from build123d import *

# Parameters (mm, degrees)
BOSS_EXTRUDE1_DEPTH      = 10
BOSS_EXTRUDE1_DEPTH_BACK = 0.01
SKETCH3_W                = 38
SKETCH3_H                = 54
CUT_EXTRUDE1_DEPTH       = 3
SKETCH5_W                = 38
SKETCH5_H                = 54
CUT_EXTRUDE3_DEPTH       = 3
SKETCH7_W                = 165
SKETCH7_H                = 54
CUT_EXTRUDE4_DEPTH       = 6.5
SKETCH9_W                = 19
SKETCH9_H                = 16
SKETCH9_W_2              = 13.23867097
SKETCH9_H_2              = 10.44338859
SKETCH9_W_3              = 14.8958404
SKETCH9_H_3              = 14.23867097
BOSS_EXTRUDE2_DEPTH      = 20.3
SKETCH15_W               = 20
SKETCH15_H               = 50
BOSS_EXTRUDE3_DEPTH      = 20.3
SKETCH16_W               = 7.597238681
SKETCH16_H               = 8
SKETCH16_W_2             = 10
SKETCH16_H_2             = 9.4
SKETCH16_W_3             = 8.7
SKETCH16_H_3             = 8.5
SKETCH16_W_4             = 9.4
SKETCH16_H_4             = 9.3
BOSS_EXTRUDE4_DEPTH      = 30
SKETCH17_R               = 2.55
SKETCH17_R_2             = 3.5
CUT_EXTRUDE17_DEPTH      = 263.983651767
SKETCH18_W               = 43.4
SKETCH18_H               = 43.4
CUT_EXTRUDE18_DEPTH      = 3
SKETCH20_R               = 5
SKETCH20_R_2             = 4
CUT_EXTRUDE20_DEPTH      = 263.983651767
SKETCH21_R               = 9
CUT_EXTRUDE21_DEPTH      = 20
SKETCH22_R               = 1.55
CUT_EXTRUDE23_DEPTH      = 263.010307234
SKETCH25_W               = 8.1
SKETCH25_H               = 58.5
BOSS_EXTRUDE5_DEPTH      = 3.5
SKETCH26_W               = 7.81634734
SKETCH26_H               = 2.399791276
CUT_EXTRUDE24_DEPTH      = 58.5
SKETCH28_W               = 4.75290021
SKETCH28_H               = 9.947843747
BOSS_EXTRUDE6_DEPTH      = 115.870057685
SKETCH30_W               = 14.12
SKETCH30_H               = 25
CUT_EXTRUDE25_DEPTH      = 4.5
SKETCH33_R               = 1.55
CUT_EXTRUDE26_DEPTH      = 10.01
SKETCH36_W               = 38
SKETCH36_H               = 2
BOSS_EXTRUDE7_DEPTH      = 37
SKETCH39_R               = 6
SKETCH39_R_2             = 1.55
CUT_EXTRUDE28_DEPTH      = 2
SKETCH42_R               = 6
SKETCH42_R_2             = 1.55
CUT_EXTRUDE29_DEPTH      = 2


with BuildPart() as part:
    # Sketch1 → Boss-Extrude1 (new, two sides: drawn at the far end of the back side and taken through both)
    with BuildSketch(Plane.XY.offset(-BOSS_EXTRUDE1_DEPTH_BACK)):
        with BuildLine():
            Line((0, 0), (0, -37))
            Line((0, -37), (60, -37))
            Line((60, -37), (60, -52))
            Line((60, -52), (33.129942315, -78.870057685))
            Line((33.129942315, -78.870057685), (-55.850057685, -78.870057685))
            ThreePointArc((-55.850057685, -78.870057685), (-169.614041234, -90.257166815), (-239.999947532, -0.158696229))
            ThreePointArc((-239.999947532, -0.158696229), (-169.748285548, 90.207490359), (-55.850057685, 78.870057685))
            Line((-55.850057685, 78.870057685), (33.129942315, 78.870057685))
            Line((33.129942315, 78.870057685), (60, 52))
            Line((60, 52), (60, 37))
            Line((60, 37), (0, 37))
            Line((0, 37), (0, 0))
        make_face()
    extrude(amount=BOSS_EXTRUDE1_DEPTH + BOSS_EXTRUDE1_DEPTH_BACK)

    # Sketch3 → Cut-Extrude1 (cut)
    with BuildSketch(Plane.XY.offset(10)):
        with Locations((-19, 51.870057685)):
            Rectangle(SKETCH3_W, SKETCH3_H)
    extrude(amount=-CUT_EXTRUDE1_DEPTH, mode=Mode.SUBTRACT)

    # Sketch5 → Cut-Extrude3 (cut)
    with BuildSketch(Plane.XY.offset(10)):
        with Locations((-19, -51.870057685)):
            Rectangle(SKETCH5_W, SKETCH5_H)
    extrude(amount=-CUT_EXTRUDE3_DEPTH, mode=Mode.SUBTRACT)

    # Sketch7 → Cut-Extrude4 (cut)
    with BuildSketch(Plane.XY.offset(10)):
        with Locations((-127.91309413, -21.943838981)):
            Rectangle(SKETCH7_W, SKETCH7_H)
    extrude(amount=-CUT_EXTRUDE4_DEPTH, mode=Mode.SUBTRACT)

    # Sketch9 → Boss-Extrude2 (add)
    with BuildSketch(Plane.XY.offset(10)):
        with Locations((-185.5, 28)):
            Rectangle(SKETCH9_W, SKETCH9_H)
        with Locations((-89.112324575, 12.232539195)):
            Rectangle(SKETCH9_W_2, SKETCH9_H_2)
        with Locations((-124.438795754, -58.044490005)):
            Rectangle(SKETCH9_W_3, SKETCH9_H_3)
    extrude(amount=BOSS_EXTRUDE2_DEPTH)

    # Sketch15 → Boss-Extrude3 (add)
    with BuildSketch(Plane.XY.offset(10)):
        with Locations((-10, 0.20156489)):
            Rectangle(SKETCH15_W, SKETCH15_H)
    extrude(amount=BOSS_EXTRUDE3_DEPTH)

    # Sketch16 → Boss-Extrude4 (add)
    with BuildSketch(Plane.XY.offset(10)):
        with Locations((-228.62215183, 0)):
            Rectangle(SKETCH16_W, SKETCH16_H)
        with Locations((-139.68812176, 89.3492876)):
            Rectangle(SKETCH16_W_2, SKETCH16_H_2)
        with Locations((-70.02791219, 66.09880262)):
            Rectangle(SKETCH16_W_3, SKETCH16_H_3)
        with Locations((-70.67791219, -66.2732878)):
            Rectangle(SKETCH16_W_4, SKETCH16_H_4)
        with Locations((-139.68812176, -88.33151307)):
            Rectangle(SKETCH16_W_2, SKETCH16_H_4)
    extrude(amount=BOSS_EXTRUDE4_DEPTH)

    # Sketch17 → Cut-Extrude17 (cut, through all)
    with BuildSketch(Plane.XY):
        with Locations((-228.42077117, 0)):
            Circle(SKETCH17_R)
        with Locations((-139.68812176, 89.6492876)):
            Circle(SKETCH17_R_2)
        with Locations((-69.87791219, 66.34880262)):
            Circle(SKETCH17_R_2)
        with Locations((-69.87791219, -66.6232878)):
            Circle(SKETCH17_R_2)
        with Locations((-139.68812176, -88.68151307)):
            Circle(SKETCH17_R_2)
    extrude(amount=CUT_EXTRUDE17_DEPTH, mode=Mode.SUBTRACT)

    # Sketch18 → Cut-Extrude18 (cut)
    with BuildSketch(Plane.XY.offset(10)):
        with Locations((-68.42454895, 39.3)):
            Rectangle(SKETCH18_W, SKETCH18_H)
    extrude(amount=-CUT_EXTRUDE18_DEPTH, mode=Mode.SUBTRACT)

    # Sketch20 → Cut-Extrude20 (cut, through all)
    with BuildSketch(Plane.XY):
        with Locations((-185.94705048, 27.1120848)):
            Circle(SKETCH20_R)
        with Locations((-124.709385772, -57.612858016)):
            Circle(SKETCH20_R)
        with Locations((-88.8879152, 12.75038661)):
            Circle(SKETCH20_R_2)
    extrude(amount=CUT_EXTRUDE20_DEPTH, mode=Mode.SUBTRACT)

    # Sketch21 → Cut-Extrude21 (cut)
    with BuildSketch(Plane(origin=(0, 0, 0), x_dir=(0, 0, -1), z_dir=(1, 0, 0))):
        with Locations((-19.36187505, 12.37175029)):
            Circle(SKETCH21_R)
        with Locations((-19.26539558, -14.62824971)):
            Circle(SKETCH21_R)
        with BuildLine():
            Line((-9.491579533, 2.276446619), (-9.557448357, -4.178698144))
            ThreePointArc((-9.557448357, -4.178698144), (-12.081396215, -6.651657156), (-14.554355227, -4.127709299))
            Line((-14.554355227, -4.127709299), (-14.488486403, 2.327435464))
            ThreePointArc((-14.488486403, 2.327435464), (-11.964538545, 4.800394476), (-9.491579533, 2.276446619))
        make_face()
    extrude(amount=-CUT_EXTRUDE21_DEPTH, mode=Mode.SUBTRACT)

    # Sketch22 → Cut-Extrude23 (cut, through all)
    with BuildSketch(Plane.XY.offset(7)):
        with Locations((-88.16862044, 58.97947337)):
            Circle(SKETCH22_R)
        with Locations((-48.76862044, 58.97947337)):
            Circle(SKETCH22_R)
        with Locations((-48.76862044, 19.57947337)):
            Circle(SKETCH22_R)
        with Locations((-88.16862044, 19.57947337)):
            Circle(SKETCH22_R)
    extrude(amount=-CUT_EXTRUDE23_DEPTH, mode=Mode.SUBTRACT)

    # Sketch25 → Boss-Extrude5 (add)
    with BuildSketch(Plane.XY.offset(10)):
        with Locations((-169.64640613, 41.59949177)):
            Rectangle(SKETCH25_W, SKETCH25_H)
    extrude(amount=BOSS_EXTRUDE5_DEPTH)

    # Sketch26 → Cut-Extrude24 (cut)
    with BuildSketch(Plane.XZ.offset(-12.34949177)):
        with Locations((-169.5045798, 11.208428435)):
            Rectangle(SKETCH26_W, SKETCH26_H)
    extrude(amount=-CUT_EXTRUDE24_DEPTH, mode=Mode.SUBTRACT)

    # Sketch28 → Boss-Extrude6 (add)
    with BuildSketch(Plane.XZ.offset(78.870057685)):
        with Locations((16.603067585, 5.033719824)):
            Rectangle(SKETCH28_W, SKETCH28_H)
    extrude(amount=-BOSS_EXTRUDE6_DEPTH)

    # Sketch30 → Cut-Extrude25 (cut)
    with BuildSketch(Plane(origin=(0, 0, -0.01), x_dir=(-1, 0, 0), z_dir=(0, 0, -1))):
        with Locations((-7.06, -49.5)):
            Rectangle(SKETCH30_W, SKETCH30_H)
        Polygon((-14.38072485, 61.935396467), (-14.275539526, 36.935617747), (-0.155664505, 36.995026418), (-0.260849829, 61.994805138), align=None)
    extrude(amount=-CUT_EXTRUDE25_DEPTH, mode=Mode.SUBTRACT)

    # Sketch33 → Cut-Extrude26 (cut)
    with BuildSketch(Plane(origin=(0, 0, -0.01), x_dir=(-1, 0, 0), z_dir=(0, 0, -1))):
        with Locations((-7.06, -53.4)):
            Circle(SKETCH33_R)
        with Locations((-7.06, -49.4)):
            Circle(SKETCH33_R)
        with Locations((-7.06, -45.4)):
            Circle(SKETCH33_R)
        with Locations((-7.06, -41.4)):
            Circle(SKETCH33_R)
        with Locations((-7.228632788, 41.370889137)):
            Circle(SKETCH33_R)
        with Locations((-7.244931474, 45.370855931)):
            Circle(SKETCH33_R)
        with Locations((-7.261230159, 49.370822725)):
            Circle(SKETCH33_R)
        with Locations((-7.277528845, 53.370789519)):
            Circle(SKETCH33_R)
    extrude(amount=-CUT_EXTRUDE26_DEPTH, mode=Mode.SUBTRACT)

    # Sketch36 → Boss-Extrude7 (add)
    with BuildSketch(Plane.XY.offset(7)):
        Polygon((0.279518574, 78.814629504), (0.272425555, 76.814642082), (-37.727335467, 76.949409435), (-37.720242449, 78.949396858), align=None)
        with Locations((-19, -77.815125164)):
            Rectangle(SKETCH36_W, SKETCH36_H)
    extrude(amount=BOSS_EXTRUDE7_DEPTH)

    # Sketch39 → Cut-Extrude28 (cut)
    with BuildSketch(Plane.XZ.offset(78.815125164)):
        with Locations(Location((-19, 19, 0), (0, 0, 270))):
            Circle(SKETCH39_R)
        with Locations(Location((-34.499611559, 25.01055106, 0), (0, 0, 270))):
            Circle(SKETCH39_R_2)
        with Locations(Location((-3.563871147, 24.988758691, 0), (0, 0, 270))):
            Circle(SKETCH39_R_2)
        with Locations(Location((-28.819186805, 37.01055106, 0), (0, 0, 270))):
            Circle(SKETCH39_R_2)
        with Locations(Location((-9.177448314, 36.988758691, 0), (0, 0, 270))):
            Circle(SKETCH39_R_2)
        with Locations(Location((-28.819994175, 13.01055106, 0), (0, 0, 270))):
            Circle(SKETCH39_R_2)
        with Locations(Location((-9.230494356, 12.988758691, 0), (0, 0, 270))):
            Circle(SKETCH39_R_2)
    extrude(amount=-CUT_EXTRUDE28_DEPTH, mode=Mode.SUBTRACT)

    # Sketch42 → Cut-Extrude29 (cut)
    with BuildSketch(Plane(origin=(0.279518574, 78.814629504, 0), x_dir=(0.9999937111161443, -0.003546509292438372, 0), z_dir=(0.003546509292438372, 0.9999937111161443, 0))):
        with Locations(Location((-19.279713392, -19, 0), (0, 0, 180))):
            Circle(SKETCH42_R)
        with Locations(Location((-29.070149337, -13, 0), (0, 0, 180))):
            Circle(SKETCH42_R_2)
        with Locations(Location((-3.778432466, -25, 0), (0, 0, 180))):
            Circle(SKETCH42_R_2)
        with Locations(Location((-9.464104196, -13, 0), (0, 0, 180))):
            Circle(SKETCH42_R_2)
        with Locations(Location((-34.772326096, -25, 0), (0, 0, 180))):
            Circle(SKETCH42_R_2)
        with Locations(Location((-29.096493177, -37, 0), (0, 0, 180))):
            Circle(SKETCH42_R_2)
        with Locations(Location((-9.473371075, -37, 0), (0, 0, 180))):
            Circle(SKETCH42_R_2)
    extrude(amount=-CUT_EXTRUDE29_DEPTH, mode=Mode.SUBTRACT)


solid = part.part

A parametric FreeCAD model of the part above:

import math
import FreeCAD as App
import Part
import Sketcher
from FreeCAD import Vector
Q = App.Units.Quantity


def add_polygon(sketch, points):
    """Adds a closed chain of lines whose ends are joined by coincident constraints."""
    first, n = sketch.GeometryCount, len(points)
    for a, b in zip(points, points[1:] + points[:1]):
        sketch.addGeometry(Part.LineSegment(App.Vector(*a, 0), App.Vector(*b, 0)), False)
    for i in range(n):
        sketch.addConstraint(Sketcher.Constraint("Coincident", first + i, 2, first + (i + 1) % n, 1))

doc = App.newDocument("Part")
body = doc.addObject("PartDesign::Body", "Body")

sketch1 = body.newObject("Sketcher::SketchObject", "Sketch")
sketch1.AttachmentSupport = (doc.getObject("XY_Plane"), [""])
sketch1.MapMode = "FlatFace"
sketch1.addGeometry(Part.LineSegment(Vector(60, -37, 0), Vector(0, -37, 0)), False)
sketch1.addGeometry(Part.LineSegment(Vector(0, -37, 0), Vector(0, 37, 0)), False)
sketch1.addGeometry(Part.LineSegment(Vector(0, 37, 0), Vector(60, 37, 0)), False)
sketch1.addGeometry(Part.LineSegment(Vector(60, 37, 0), Vector(60, 52, 0)), False)
sketch1.addGeometry(Part.LineSegment(Vector(60, 52, 0), Vector(33, 79, 0)), False)
sketch1.addGeometry(Part.LineSegment(Vector(33, 79, 0), Vector(-56, 79, 0)), False)
sketch1.addGeometry(Part.ArcOfCircle(Part.Circle(Vector(-123, -19, 0), Vector(0, 0, 1), 118), math.radians(55), math.radians(171)), False)
sketch1.addGeometry(Part.ArcOfCircle(Part.Circle(Vector(-123, 19, 0), Vector(0, 0, 1), 118), math.radians(-171), math.radians(-55)), False)
sketch1.addGeometry(Part.LineSegment(Vector(-56, -79, 0), Vector(33, -79, 0)), False)
sketch1.addGeometry(Part.LineSegment(Vector(33, -79, 0), Vector(60, -52, 0)), False)
sketch1.addGeometry(Part.LineSegment(Vector(60, -52, 0), Vector(60, -37, 0)), False)
sketch1.addConstraint(Sketcher.Constraint("Coincident", 0, 2, 1, 1))
sketch1.addConstraint(Sketcher.Constraint("Coincident", 1, 2, 2, 1))
sketch1.addConstraint(Sketcher.Constraint("Coincident", 2, 2, 3, 1))
sketch1.addConstraint(Sketcher.Constraint("Coincident", 3, 2, 4, 1))
sketch1.addConstraint(Sketcher.Constraint("Coincident", 4, 2, 5, 1))
sketch1.addConstraint(Sketcher.Constraint("Coincident", 5, 2, 6, 1))
sketch1.addConstraint(Sketcher.Constraint("Coincident", 6, 2, 7, 1))
sketch1.addConstraint(Sketcher.Constraint("Coincident", 7, 2, 8, 1))
sketch1.addConstraint(Sketcher.Constraint("Coincident", 8, 2, 9, 1))
sketch1.addConstraint(Sketcher.Constraint("Coincident", 9, 2, 10, 1))
sketch1.addConstraint(Sketcher.Constraint("Coincident", 10, 2, 0, 1))
sketch1.addConstraint(Sketcher.Constraint("Horizontal", 0))
sketch1.addConstraint(Sketcher.Constraint("Vertical", 1))
sketch1.addConstraint(Sketcher.Constraint("Horizontal", 2))
sketch1.addConstraint(Sketcher.Constraint("Vertical", 3))
sketch1.addConstraint(Sketcher.Constraint("Horizontal", 5))
sketch1.addConstraint(Sketcher.Constraint("Horizontal", 8))
sketch1.addConstraint(Sketcher.Constraint("Vertical", 10))
sketch1.addConstraint(Sketcher.Constraint("Symmetric", 0, 2, 1, 2, -1, 1))
sketch1.addConstraint(Sketcher.Constraint("Symmetric", 5, 2, 7, 2, -1))
sketch1.addConstraint(Sketcher.Constraint("Symmetric", 3, 2, 9, 2, -1))
sketch1.addConstraint(Sketcher.Constraint("Perpendicular", 4, 9))
sketch1.addConstraint(Sketcher.Constraint("Vertical", 6, 3, 7, 3))
sketch1.addConstraint(Sketcher.Constraint("Vertical", 4, 2, 8, 2))
sketch1.addConstraint(Sketcher.Constraint("DistanceX", 0, 2, 0, 1, Q("60 mm")))
sketch1.addConstraint(Sketcher.Constraint("DistanceY", 1, 1, 1, 2, Q("74 mm")))
sketch1.addConstraint(Sketcher.Constraint("DistanceY", 3, 1, 3, 2, Q("15 mm")))
sketch1.addConstraint(Sketcher.Constraint("Distance", 4, Q("38 mm")))
sketch1.addConstraint(Sketcher.Constraint("DistanceX", 5, 2, 5, 1, Q("88.98 mm")))
sketch1.addConstraint(Sketcher.Constraint("Radius", 6, Q("118.378204 mm")))
sketch1.addConstraint(Sketcher.Constraint("Radius", 7, Q("118.439873 mm")))
sketch1.addConstraint(Sketcher.Constraint("DistanceX", 6, 2, 6, 3, Q("116.936702 mm")))
pad1 = body.newObject("PartDesign::Pad", "Pad")
pad1.Profile = sketch1
pad1.Type = "TwoLengths"
pad1.Length = 10
pad1.Length2 = 0.01

sketch2 = body.newObject("Sketcher::SketchObject", "Sketch001")
sketch2.AttachmentSupport = (doc.getObject("XY_Plane"), [""])
sketch2.MapMode = "FlatFace"
sketch2.AttachmentOffset = App.Placement(Vector(0, 0, 10), App.Rotation())
add_polygon(sketch2, [(-38, 79), (-38, 25), (0, 25), (0, 79)])
sketch2.addConstraint(Sketcher.Constraint("Vertical", 0))
sketch2.addConstraint(Sketcher.Constraint("Horizontal", 1))
sketch2.addConstraint(Sketcher.Constraint("Vertical", 2))
sketch2.addConstraint(Sketcher.Constraint("Horizontal", 3))
sketch2.addConstraint(Sketcher.Constraint("PointOnObject", 1, 2, -2))
sketch2.addConstraint(Sketcher.Constraint("DistanceX", 1, 1, 1, 2, Q("38 mm")))
sketch2.addConstraint(Sketcher.Constraint("DistanceY", 0, 2, 0, 1, Q("54 mm")))
sketch2.addConstraint(Sketcher.Constraint("DistanceY", -1, 1, 0, 2, Q("24.870058 mm")))
pocket1 = body.newObject("PartDesign::Pocket", "Pocket")
pocket1.Profile = sketch2
pocket1.Length = 3

sketch3 = body.newObject("Sketcher::SketchObject", "Sketch002")
sketch3.AttachmentSupport = (doc.getObject("XY_Plane"), [""])
sketch3.MapMode = "FlatFace"
sketch3.AttachmentOffset = App.Placement(Vector(0, 0, 10), App.Rotation())
add_polygon(sketch3, [(-38, -25), (-38, -79), (0, -79), (0, -25)])
sketch3.addConstraint(Sketcher.Constraint("Vertical", 0))
sketch3.addConstraint(Sketcher.Constraint("Horizontal", 1))
sketch3.addConstraint(Sketcher.Constraint("Vertical", 2))
sketch3.addConstraint(Sketcher.Constraint("Horizontal", 3))
sketch3.addConstraint(Sketcher.Constraint("PointOnObject", 1, 2, -2))
sketch3.addConstraint(Sketcher.Constraint("DistanceX", 1, 1, 1, 2, Q("38 mm")))
sketch3.addConstraint(Sketcher.Constraint("DistanceY", 0, 2, 0, 1, Q("54 mm")))
sketch3.addConstraint(Sketcher.Constraint("DistanceY", 0, 2, -1, 1, Q("78.870058 mm")))
pocket2 = body.newObject("PartDesign::Pocket", "Pocket001")
pocket2.Profile = sketch3
pocket2.Length = 3

sketch4 = body.newObject("Sketcher::SketchObject", "Sketch003")
sketch4.AttachmentSupport = (doc.getObject("XY_Plane"), [""])
sketch4.MapMode = "FlatFace"
sketch4.AttachmentOffset = App.Placement(Vector(0, 0, 10), App.Rotation())
add_polygon(sketch4, [(-210, 5), (-210, -49), (-45, -49), (-45, 5)])
sketch4.addConstraint(Sketcher.Constraint("Vertical", 0))
sketch4.addConstraint(Sketcher.Constraint("Horizontal", 1))
sketch4.addConstraint(Sketcher.Constraint("Vertical", 2))
sketch4.addConstraint(Sketcher.Constraint("Horizontal", 3))
sketch4.addConstraint(Sketcher.Constraint("DistanceX", 1, 1, 1, 2, Q("165 mm")))
sketch4.addConstraint(Sketcher.Constraint("DistanceY", 0, 2, 0, 1, Q("54 mm")))
sketch4.addConstraint(Sketcher.Constraint("DistanceY", 0, 2, -1, 1, Q("48.943839 mm")))
sketch4.addConstraint(Sketcher.Constraint("DistanceX", 0, 2, -1, 1, Q("210.413094 mm")))
pocket3 = body.newObject("PartDesign::Pocket", "Pocket002")
pocket3.Profile = sketch4
pocket3.Length = 6.5

sketch5 = body.newObject("Sketcher::SketchObject", "Sketch004")
sketch5.AttachmentSupport = (doc.getObject("XY_Plane"), [""])
sketch5.MapMode = "FlatFace"
sketch5.AttachmentOffset = App.Placement(Vector(0, 0, 10), App.Rotation())
add_polygon(sketch5, [(-195, 36), (-195, 20), (-176, 20), (-176, 36)])
add_polygon(sketch5, [(-96, 17), (-96, 7), (-82, 7), (-82, 17)])
add_polygon(sketch5, [(-132, -51), (-132, -65), (-117, -65), (-117, -51)])
sketch5.addConstraint(Sketcher.Constraint("Vertical", 0))
sketch5.addConstraint(Sketcher.Constraint("Horizontal", 1))
sketch5.addConstraint(Sketcher.Constraint("Vertical", 2))
sketch5.addConstraint(Sketcher.Constraint("Horizontal", 3))
sketch5.addConstraint(Sketcher.Constraint("Vertical", 4))
sketch5.addConstraint(Sketcher.Constraint("Horizontal", 5))
sketch5.addConstraint(Sketcher.Constraint("Vertical", 6))
sketch5.addConstraint(Sketcher.Constraint("Horizontal", 7))
sketch5.addConstraint(Sketcher.Constraint("Vertical", 8))
sketch5.addConstraint(Sketcher.Constraint("Horizontal", 9))
sketch5.addConstraint(Sketcher.Constraint("Vertical", 10))
sketch5.addConstraint(Sketcher.Constraint("Horizontal", 11))
sketch5.addConstraint(Sketcher.Constraint("DistanceX", 1, 1, 1, 2, Q("19 mm")))
sketch5.addConstraint(Sketcher.Constraint("DistanceY", 0, 2, 0, 1, Q("16 mm")))
sketch5.addConstraint(Sketcher.Constraint("DistanceX", 0, 2, -1, 1, Q("195 mm")))
sketch5.addConstraint(Sketcher.Constraint("DistanceY", -1, 1, 0, 2, Q("20 mm")))
sketch5.addConstraint(Sketcher.Constraint("DistanceY", 10, 2, 4, 2, Q("57.935999 mm")))
sketch5.addConstraint(Sketcher.Constraint("DistanceX", 5, 1, 5, 2, Q("13.238671 mm")))
sketch5.addConstraint(Sketcher.Constraint("DistanceX", 9, 1, 9, 2, Q("14.89584 mm")))
sketch5.addConstraint(Sketcher.Constraint("DistanceY", 4, 2, 4, 1, Q("10.443389 mm")))
sketch5.addConstraint(Sketcher.Constraint("DistanceY", 8, 2, 8, 1, Q("14.238671 mm")))
sketch5.addConstraint(Sketcher.Constraint("DistanceX", 4, 2, -1, 1, Q("95.73166 mm")))
sketch5.addConstraint(Sketcher.Constraint("DistanceY", -1, 1, 4, 2, Q("7.010845 mm")))
sketch5.addConstraint(Sketcher.Constraint("DistanceX", 8, 2, -1, 1, Q("131.886716 mm")))
pad2 = body.newObject("PartDesign::Pad", "Pad001")
pad2.Profile = sketch5
pad2.Length = 20.3

sketch6 = body.newObject("Sketcher::SketchObject", "Sketch005")
sketch6.AttachmentSupport = (doc.getObject("XY_Plane"), [""])
sketch6.MapMode = "FlatFace"
sketch6.AttachmentOffset = App.Placement(Vector(0, 0, 10), App.Rotation())
add_polygon(sketch6, [(-20, 25), (-20, -25), (0, -25), (0, 25)])
sketch6.addConstraint(Sketcher.Constraint("Vertical", 0))
sketch6.addConstraint(Sketcher.Constraint("Horizontal", 1))
sketch6.addConstraint(Sketcher.Constraint("Vertical", 2))
sketch6.addConstraint(Sketcher.Constraint("Horizontal", 3))
sketch6.addConstraint(Sketcher.Constraint("PointOnObject", 1, 2, -2))
sketch6.addConstraint(Sketcher.Constraint("DistanceX", 1, 1, 1, 2, Q("20 mm")))
sketch6.addConstraint(Sketcher.Constraint("DistanceY", 0, 2, 0, 1, Q("50 mm")))
sketch6.addConstraint(Sketcher.Constraint("DistanceY", 0, 2, -1, 1, Q("24.798435 mm")))
pad3 = body.newObject("PartDesign::Pad", "Pad002")
pad3.Profile = sketch6
pad3.Length = 20.3

sketch7 = body.newObject("Sketcher::SketchObject", "Sketch006")
sketch7.AttachmentSupport = (doc.getObject("XY_Plane"), [""])
sketch7.MapMode = "FlatFace"
sketch7.AttachmentOffset = App.Placement(Vector(0, 0, 10), App.Rotation())
add_polygon(sketch7, [(-232, 4), (-232, -4), (-225, -4), (-225, 4)])
add_polygon(sketch7, [(-145, 94), (-145, 85), (-135, 85), (-135, 94)])
add_polygon(sketch7, [(-74, 70), (-74, 62), (-66, 62), (-66, 70)])
add_polygon(sketch7, [(-75, -62), (-75, -71), (-66, -71), (-66, -62)])
add_polygon(sketch7, [(-145, -84), (-145, -93), (-135, -93), (-135, -84)])
sketch7.addConstraint(Sketcher.Constraint("Vertical", 0))
sketch7.addConstraint(Sketcher.Constraint("Horizontal", 1))
sketch7.addConstraint(Sketcher.Constraint("Vertical", 2))
sketch7.addConstraint(Sketcher.Constraint("Horizontal", 3))
sketch7.addConstraint(Sketcher.Constraint("Vertical", 4))
sketch7.addConstraint(Sketcher.Constraint("Horizontal", 5))
sketch7.addConstraint(Sketcher.Constraint("Vertical", 6))
sketch7.addConstraint(Sketcher.Constraint("Horizontal", 7))
sketch7.addConstraint(Sketcher.Constraint("Vertical", 8))
sketch7.addConstraint(Sketcher.Constraint("Horizontal", 9))
sketch7.addConstraint(Sketcher.Constraint("Vertical", 10))
sketch7.addConstraint(Sketcher.Constraint("Horizontal", 11))
sketch7.addConstraint(Sketcher.Constraint("Vertical", 12))
sketch7.addConstraint(Sketcher.Constraint("Horizontal", 13))
sketch7.addConstraint(Sketcher.Constraint("Vertical", 14))
sketch7.addConstraint(Sketcher.Constraint("Horizontal", 15))
sketch7.addConstraint(Sketcher.Constraint("Vertical", 16))
sketch7.addConstraint(Sketcher.Constraint("Horizontal", 17))
sketch7.addConstraint(Sketcher.Constraint("Vertical", 18))
sketch7.addConstraint(Sketcher.Constraint("Horizontal", 19))
sketch7.addConstraint(Sketcher.Constraint("Vertical", 7, 2, 16, 2))
sketch7.addConstraint(Sketcher.Constraint("Vertical", 6, 2, 17, 2))
sketch7.addConstraint(Sketcher.Constraint("Equal", 15, 4))
sketch7.addConstraint(Sketcher.Constraint("Equal", 14, 16))
sketch7.addConstraint(Sketcher.Constraint("DistanceX", 5, 1, 5, 2, Q("10 mm")))
sketch7.addConstraint(Sketcher.Constraint("DistanceY", 0, 2, 0, 1, Q("8 mm")))
sketch7.addConstraint(Sketcher.Constraint("DistanceX", 9, 1, 9, 2, Q("8.7 mm")))
sketch7.addConstraint(Sketcher.Constraint("DistanceX", 13, 1, 13, 2, Q("9.4 mm")))
sketch7.addConstraint(Sketcher.Constraint("DistanceY", 8, 2, 8, 1, Q("8.5 mm")))
sketch7.addConstraint(Sketcher.Constraint("DistanceY", 12, 2, 12, 1, Q("9.3 mm")))
sketch7.addConstraint(Sketcher.Constraint("DistanceY", 0, 2, -1, 1, Q("4 mm")))
sketch7.addConstraint(Sketcher.Constraint("DistanceX", 12, 2, 8, 2, Q("1 mm")))
sketch7.addConstraint(Sketcher.Constraint("DistanceX", 1, 1, 1, 2, Q("7.597239 mm")))
sketch7.addConstraint(Sketcher.Constraint("DistanceX", 0, 2, -1, 1, Q("232.420771 mm")))
sketch7.addConstraint(Sketcher.Constraint("DistanceX", 4, 2, -1, 1, Q("144.688122 mm")))
sketch7.addConstraint(Sketcher.Constraint("DistanceX", 5, 2, 8, 2, Q("60.31021 mm")))
sketch7.addConstraint(Sketcher.Constraint("DistanceY", 12, 2, 8, 2, Q("132.77209 mm")))
sketch7.addConstraint(Sketcher.Constraint("DistanceY", -1, 1, 4, 2, Q("84.649288 mm")))
sketch7.addConstraint(Sketcher.Constraint("DistanceY", -1, 1, 8, 2, Q("61.848803 mm")))
sketch7.addConstraint(Sketcher.Constraint("DistanceY", 16, 2, -1, 1, Q("92.981513 mm")))
pad4 = body.newObject("PartDesign::Pad", "Pad003")
pad4.Profile = sketch7
pad4.Length = 30

sketch8 = body.newObject("Sketcher::SketchObject", "Sketch007")
sketch8.AttachmentSupport = (doc.getObject("XY_Plane"), [""])
sketch8.MapMode = "FlatFace"
sketch8.addGeometry(Part.Circle(Vector(-228.4, 0, 0), Vector(0, 0, 1), 2.5), False)
sketch8.addGeometry(Part.Circle(Vector(-139.7, 89.6, 0), Vector(0, 0, 1), 3.5), False)
sketch8.addGeometry(Part.Circle(Vector(-69.9, 66.3, 0), Vector(0, 0, 1), 3.5), False)
sketch8.addGeometry(Part.Circle(Vector(-69.9, -66.6, 0), Vector(0, 0, 1), 3.5), False)
sketch8.addGeometry(Part.Circle(Vector(-139.7, -88.7, 0), Vector(0, 0, 1), 3.5), False)
sketch8.addConstraint(Sketcher.Constraint("Equal", 1, 2))
sketch8.addConstraint(Sketcher.Constraint("Equal", 2, 3))
sketch8.addConstraint(Sketcher.Constraint("Equal", 3, 4))
sketch8.addConstraint(Sketcher.Constraint("PointOnObject", 0, 3, -1))
sketch8.addConstraint(Sketcher.Constraint("Vertical", 2, 3, 3, 3))
sketch8.addConstraint(Sketcher.Constraint("Vertical", 1, 3, 4, 3))
sketch8.addConstraint(Sketcher.Constraint("Diameter", 1, Q("7 mm")))
sketch8.addConstraint(Sketcher.Constraint("Diameter", 0, Q("5.1 mm")))
sketch8.addConstraint(Sketcher.Constraint("DistanceY", 4, 3, 1, 3, Q("178.330801 mm")))
sketch8.addConstraint(Sketcher.Constraint("DistanceX", 0, 3, -1, 1, Q("228.420771 mm")))
sketch8.addConstraint(Sketcher.Constraint("DistanceX", 1, 3, -1, 1, Q("139.688122 mm")))
sketch8.addConstraint(Sketcher.Constraint("DistanceX", 1, 3, 2, 3, Q("69.81021 mm")))
sketch8.addConstraint(Sketcher.Constraint("DistanceY", 3, 3, 2, 3, Q("132.97209 mm")))
sketch8.addConstraint(Sketcher.Constraint("DistanceY", -1, 1, 1, 3, Q("89.649288 mm")))
sketch8.addConstraint(Sketcher.Constraint("DistanceY", -1, 1, 2, 3, Q("66.348803 mm")))
pocket4 = body.newObject("PartDesign::Pocket", "Pocket003")
pocket4.Profile = sketch8
pocket4.Type = "ThroughAll"
pocket4.Reversed = True

sketch9 = body.newObject("Sketcher::SketchObject", "Sketch008")
sketch9.AttachmentSupport = (doc.getObject("XY_Plane"), [""])
sketch9.MapMode = "FlatFace"
sketch9.AttachmentOffset = App.Placement(Vector(0, 0, 10), App.Rotation())
add_polygon(sketch9, [(-90, 61), (-90, 18), (-47, 18), (-47, 61)])
sketch9.addConstraint(Sketcher.Constraint("Vertical", 0))
sketch9.addConstraint(Sketcher.Constraint("Horizontal", 1))
sketch9.addConstraint(Sketcher.Constraint("Vertical", 2))
sketch9.addConstraint(Sketcher.Constraint("Horizontal", 3))
sketch9.addConstraint(Sketcher.Constraint("Equal", 3, 0))
sketch9.addConstraint(Sketcher.Constraint("DistanceX", 1, 1, 1, 2, Q("43.4 mm")))
sketch9.addConstraint(Sketcher.Constraint("DistanceY", -1, 1, 2, 2, Q("61 mm")))
sketch9.addConstraint(Sketcher.Constraint("DistanceX", 0, 2, -1, 1, Q("90.124549 mm")))
pocket5 = body.newObject("PartDesign::Pocket", "Pocket004")
pocket5.Profile = sketch9
pocket5.Length = 3

sketch10 = body.newObject("Sketcher::SketchObject", "Sketch009")
sketch10.AttachmentSupport = (doc.getObject("XY_Plane"), [""])
sketch10.MapMode = "FlatFace"
sketch10.addGeometry(Part.Circle(Vector(-185.9, 27.1, 0), Vector(0, 0, 1), 5), False)
sketch10.addGeometry(Part.Circle(Vector(-124.7, -57.6, 0), Vector(0, 0, 1), 5), False)
sketch10.addGeometry(Part.Circle(Vector(-88.9, 12.8, 0), Vector(0, 0, 1), 4), False)
sketch10.addConstraint(Sketcher.Constraint("Equal", 0, 1))
sketch10.addConstraint(Sketcher.Constraint("Diameter", 0, Q("10 mm")))
sketch10.addConstraint(Sketcher.Constraint("Diameter", 2, Q("8 mm")))
sketch10.addConstraint(Sketcher.Constraint("DistanceY", 2, 3, 0, 3, Q("14.361698 mm")))
sketch10.addConstraint(Sketcher.Constraint("DistanceX", 0, 3, -1, 1, Q("185.94705 mm")))
sketch10.addConstraint(Sketcher.Constraint("DistanceY", 1, 3, -1, 1, Q("57.612858 mm")))
sketch10.addConstraint(Sketcher.Constraint("DistanceX", 1, 3, 2, 3, Q("35.821471 mm")))
sketch10.addConstraint(Sketcher.Constraint("DistanceY", -1, 1, 0, 3, Q("27.112085 mm")))
sketch10.addConstraint(Sketcher.Constraint("DistanceX", 1, 3, -1, 1, Q("124.709386 mm")))
pocket6 = body.newObject("PartDesign::Pocket", "Pocket005")
pocket6.Profile = sketch10
pocket6.Type = "ThroughAll"
pocket6.Reversed = True

sketch11 = body.newObject("Sketcher::SketchObject", "Sketch010")
sketch11.AttachmentSupport = (doc.getObject("YZ_Plane"), [""])
sketch11.MapMode = "FlatFace"
sketch11.addGeometry(Part.Circle(Vector(12.4, 19.4, 0), Vector(0, 0, 1), 9), False)
sketch11.addGeometry(Part.Circle(Vector(-14.6, 19.3, 0), Vector(0, 0, 1), 9), False)
sketch11.addGeometry(Part.LineSegment(Vector(-4.2, 9.6, 0), Vector(2.3, 9.5, 0)), False)
sketch11.addGeometry(Part.ArcOfCircle(Part.Circle(Vector(2.3, 12, 0), Vector(0, 0, 1), 2.5), math.radians(-91), math.radians(89)), False)
sketch11.addGeometry(Part.LineSegment(Vector(2.3, 14.5, 0), Vector(-4.1, 14.6, 0)), False)
sketch11.addGeometry(Part.ArcOfCircle(Part.Circle(Vector(-4.2, 12.1, 0), Vector(0, 0, 1), 2.5), math.radians(89), math.radians(269)), False)
sketch11.addConstraint(Sketcher.Constraint("Tangent", 2, 2, 3, 1))
sketch11.addConstraint(Sketcher.Constraint("Tangent", 3, 2, 4, 1))
sketch11.addConstraint(Sketcher.Constraint("Tangent", 4, 2, 5, 1))
sketch11.addConstraint(Sketcher.Constraint("Tangent", 5, 2, 2, 1))
sketch11.addConstraint(Sketcher.Constraint("Equal", 0, 1))
sketch11.addConstraint(Sketcher.Constraint("Equal", 3, 5))
sketch11.addConstraint(Sketcher.Constraint("Diameter", 0, Q("18 mm")))
sketch11.addConstraint(Sketcher.Constraint("DistanceX", 1, 3, 0, 3, Q("27 mm")))
sketch11.addConstraint(Sketcher.Constraint("Radius", 3, Q("2.498584 mm")))
sketch11.addConstraint(Sketcher.Constraint("DistanceY", -1, 1, 5, 3, Q("12.055902 mm")))
sketch11.addConstraint(Sketcher.Constraint("DistanceX", 5, 2, -1, 1, Q("4.178698 mm")))
sketch11.addConstraint(Sketcher.Constraint("Distance", 2, Q("6.455481 mm")))
sketch11.addConstraint(Sketcher.Constraint("DistanceX", -1, 1, 0, 3, Q("12.37175 mm")))
sketch11.addConstraint(Sketcher.Constraint("DistanceX", -1, 1, 3, 3, Q("2.301941 mm")))
sketch11.addConstraint(Sketcher.Constraint("DistanceY", 1, 3, 0, 3, Q("0.096479 mm")))
sketch11.addConstraint(Sketcher.Constraint("DistanceY", 3, 2, 0, 3, Q("4.873389 mm")))
pocket7 = body.newObject("PartDesign::Pocket", "Pocket006")
pocket7.Profile = sketch11
pocket7.Length = 20

sketch12 = body.newObject("Sketcher::SketchObject", "Sketch011")
sketch12.AttachmentSupport = (doc.getObject("XY_Plane"), [""])
sketch12.MapMode = "FlatFace"
sketch12.AttachmentOffset = App.Placement(Vector(0, 0, 7), App.Rotation())
sketch12.addGeometry(Part.Circle(Vector(-88.2, 59, 0), Vector(0, 0, 1), 1.6), False)
sketch12.addGeometry(Part.Circle(Vector(-48.8, 59, 0), Vector(0, 0, 1), 1.6), False)
sketch12.addGeometry(Part.Circle(Vector(-48.8, 19.6, 0), Vector(0, 0, 1), 1.6), False)
sketch12.addGeometry(Part.Circle(Vector(-88.2, 19.6, 0), Vector(0, 0, 1), 1.6), False)
sketch12.addConstraint(Sketcher.Constraint("Equal", 0, 1))
sketch12.addConstraint(Sketcher.Constraint("Equal", 1, 2))
sketch12.addConstraint(Sketcher.Constraint("Equal", 2, 3))
sketch12.addConstraint(Sketcher.Constraint("Horizontal", 0, 3, 1, 3))
sketch12.addConstraint(Sketcher.Constraint("Horizontal", 2, 3, 3, 3))
sketch12.addConstraint(Sketcher.Constraint("Vertical", 1, 3, 2, 3))
sketch12.addConstraint(Sketcher.Constraint("Vertical", 0, 3, 3, 3))
sketch12.addConstraint(Sketcher.Constraint("Diameter", 0, Q("3.1 mm")))
sketch12.addConstraint(Sketcher.Constraint("DistanceX", 0, 3, 1, 3, Q("39.4 mm")))
sketch12.addConstraint(Sketcher.Constraint("DistanceY", 2, 3, 1, 3, Q("39.4 mm")))
sketch12.addConstraint(Sketcher.Constraint("DistanceX", 0, 3, -1, 1, Q("88.16862 mm")))
sketch12.addConstraint(Sketcher.Constraint("DistanceY", -1, 1, 0, 3, Q("58.979473 mm")))
pocket8 = body.newObject("PartDesign::Pocket", "Pocket007")
pocket8.Profile = sketch12
pocket8.Type = "ThroughAll"

sketch13 = body.newObject("Sketcher::SketchObject", "Sketch012")
sketch13.AttachmentSupport = (doc.getObject("XY_Plane"), [""])
sketch13.MapMode = "FlatFace"
sketch13.AttachmentOffset = App.Placement(Vector(0, 0, 10), App.Rotation())
add_polygon(sketch13, [(-174, 71), (-174, 12), (-166, 12), (-166, 71)])
sketch13.addConstraint(Sketcher.Constraint("Vertical", 0))
sketch13.addConstraint(Sketcher.Constraint("Horizontal", 1))
sketch13.addConstraint(Sketcher.Constraint("Vertical", 2))
sketch13.addConstraint(Sketcher.Constraint("Horizontal", 3))
sketch13.addConstraint(Sketcher.Constraint("DistanceX", 1, 1, 1, 2, Q("8.1 mm")))
sketch13.addConstraint(Sketcher.Constraint("DistanceY", 0, 2, 0, 1, Q("58.5 mm")))
sketch13.addConstraint(Sketcher.Constraint("DistanceY", -1, 1, 0, 2, Q("12.349492 mm")))
sketch13.addConstraint(Sketcher.Constraint("DistanceX", 0, 2, -1, 1, Q("173.696406 mm")))
pad5 = body.newObject("PartDesign::Pad", "Pad004")
pad5.Profile = sketch13
pad5.Length = 3.5

sketch14 = body.newObject("Sketcher::SketchObject", "Sketch013")
sketch14.AttachmentSupport = (doc.getObject("XZ_Plane"), [""])
sketch14.MapMode = "FlatFace"
sketch14.AttachmentOffset = App.Placement(Vector(0, 0, -12.349492), App.Rotation())
add_polygon(sketch14, [(-173.4, 12.4), (-173.4, 10), (-165.6, 10), (-165.6, 12.4)])
sketch14.addConstraint(Sketcher.Constraint("Vertical", 0))
sketch14.addConstraint(Sketcher.Constraint("Horizontal", 1))
sketch14.addConstraint(Sketcher.Constraint("Vertical", 2))
sketch14.addConstraint(Sketcher.Constraint("Horizontal", 3))
sketch14.addConstraint(Sketcher.Constraint("DistanceY", 0, 2, 0, 1, Q("2.399791 mm")))
sketch14.addConstraint(Sketcher.Constraint("DistanceX", 1, 1, 1, 2, Q("7.816347 mm")))
sketch14.addConstraint(Sketcher.Constraint("DistanceX", 0, 2, -1, 1, Q("173.412753 mm")))
sketch14.addConstraint(Sketcher.Constraint("DistanceY", -1, 1, 0, 2, Q("10.008533 mm")))
pocket9 = body.newObject("PartDesign::Pocket", "Pocket008")
pocket9.Profile = sketch14
pocket9.Length = 58.5

sketch15 = body.newObject("Sketcher::SketchObject", "Sketch014")
sketch15.AttachmentSupport = (doc.getObject("XZ_Plane"), [""])
sketch15.MapMode = "FlatFace"
sketch15.AttachmentOffset = App.Placement(Vector(0, 0, 78.870058), App.Rotation())
add_polygon(sketch15, [(14.2, 10), (14.2, 0.1), (19, 0.1), (19, 10)])
sketch15.addConstraint(Sketcher.Constraint("Vertical", 0))
sketch15.addConstraint(Sketcher.Constraint("Horizontal", 1))
sketch15.addConstraint(Sketcher.Constraint("Vertical", 2))
sketch15.addConstraint(Sketcher.Constraint("Horizontal", 3))
sketch15.addConstraint(Sketcher.Constraint("DistanceX", 1, 1, 1, 2, Q("4.7529 mm")))
sketch15.addConstraint(Sketcher.Constraint("DistanceY", 0, 2, 0, 1, Q("9.947844 mm")))
sketch15.addConstraint(Sketcher.Constraint("DistanceY", -1, 1, 2, 2, Q("10.007642 mm")))
sketch15.addConstraint(Sketcher.Constraint("DistanceX", -1, 1, 0, 2, Q("14.226617 mm")))
pad6 = body.newObject("PartDesign::Pad", "Pad005")
pad6.Profile = sketch15
pad6.Length = 115.870058
pad6.Reversed = True

sketch16 = body.newObject("Sketcher::SketchObject", "Sketch015")
sketch16.AttachmentSupport = (doc.getObject("XY_Plane"), [""])
sketch16.MapMode = "FlatFace"
sketch16.AttachmentOffset = App.Placement(Vector(0, 0, -0.01), App.Rotation())
add_polygon(sketch16, [(14, -37), (14, -62), (0, -62), (0, -37)])
add_polygon(sketch16, [(14, 62), (14, 37), (0, 37), (0, 62)])
sketch16.addConstraint(Sketcher.Constraint("Vertical", 0))
sketch16.addConstraint(Sketcher.Constraint("Horizontal", 1))
sketch16.addConstraint(Sketcher.Constraint("Vertical", 2))
sketch16.addConstraint(Sketcher.Constraint("Horizontal", 3))
sketch16.addConstraint(Sketcher.Constraint("PointOnObject", 1, 2, -2))
sketch16.addConstraint(Sketcher.Constraint("Perpendicular", 4, 5))
sketch16.addConstraint(Sketcher.Constraint("Perpendicular", 5, 6))
sketch16.addConstraint(Sketcher.Constraint("Perpendicular", 6, 7))
sketch16.addConstraint(Sketcher.Constraint("DistanceY", 0, 2, 0, 1, Q("25 mm")))
sketch16.addConstraint(Sketcher.Constraint("Distance", 4, Q("25 mm")))
sketch16.addConstraint(Sketcher.Constraint("DistanceY", 0, 2, -1, 1, Q("62 mm")))
sketch16.addConstraint(Sketcher.Constraint("DistanceX", 1, 2, 1, 1, Q("14.12 mm")))
sketch16.addConstraint(Sketcher.Constraint("Distance", 5, Q("14.12 mm")))
sketch16.addConstraint(Sketcher.Constraint("DistanceX", -1, 1, 4, 2, Q("14.27554 mm")))
sketch16.addConstraint(Sketcher.Constraint("DistanceX", -1, 1, 6, 2, Q("0.26085 mm")))
sketch16.addConstraint(Sketcher.Constraint("DistanceY", -1, 1, 4, 2, Q("36.935618 mm")))
pocket10 = body.newObject("PartDesign::Pocket", "Pocket009")
pocket10.Profile = sketch16
pocket10.Length = 4.5
pocket10.Reversed = True

sketch17 = body.newObject("Sketcher::SketchObject", "Sketch016")
sketch17.AttachmentSupport = (doc.getObject("XY_Plane"), [""])
sketch17.MapMode = "FlatFace"
sketch17.AttachmentOffset = App.Placement(Vector(0, 0, -0.01), App.Rotation())
sketch17.addGeometry(Part.Circle(Vector(7.1, -53.4, 0), Vector(0, 0, 1), 1.6), False)
sketch17.addGeometry(Part.Circle(Vector(7.1, -49.4, 0), Vector(0, 0, 1), 1.6), False)
sketch17.addGeometry(Part.Circle(Vector(7.1, -45.4, 0), Vector(0, 0, 1), 1.6), False)
sketch17.addGeometry(Part.Circle(Vector(7.1, -41.4, 0), Vector(0, 0, 1), 1.6), False)
sketch17.addGeometry(Part.Circle(Vector(7.2, 41.4, 0), Vector(0, 0, 1), 1.6), False)
sketch17.addGeometry(Part.Circle(Vector(7.2, 45.4, 0), Vector(0, 0, 1), 1.6), False)
sketch17.addGeometry(Part.Circle(Vector(7.3, 49.4, 0), Vector(0, 0, 1), 1.6), False)
sketch17.addGeometry(Part.Circle(Vector(7.3, 53.4, 0), Vector(0, 0, 1), 1.6), False)
sketch17.addConstraint(Sketcher.Constraint("Equal", 0, 1))
sketch17.addConstraint(Sketcher.Constraint("Equal", 1, 2))
sketch17.addConstraint(Sketcher.Constraint("Equal", 2, 3))
sketch17.addConstraint(Sketcher.Constraint("Equal", 3, 4))
sketch17.addConstraint(Sketcher.Constraint("Equal", 4, 5))
sketch17.addConstraint(Sketcher.Constraint("Equal", 5, 6))
sketch17.addConstraint(Sketcher.Constraint("Equal", 6, 7))
sketch17.addConstraint(Sketcher.Constraint("Vertical", 0, 3, 1, 3))
sketch17.addConstraint(Sketcher.Constraint("Vertical", 1, 3, 2, 3))
sketch17.addConstraint(Sketcher.Constraint("Vertical", 2, 3, 3, 3))
sketch17.addConstraint(Sketcher.Constraint("Diameter", 0, Q("3.1 mm")))
sketch17.addConstraint(Sketcher.Constraint("DistanceY", 0, 3, 1, 3, Q("4 mm")))
sketch17.addConstraint(Sketcher.Constraint("DistanceY", 1, 3, 2, 3, Q("4 mm")))
sketch17.addConstraint(Sketcher.Constraint("DistanceY", 2, 3, 3, 3, Q("4 mm")))
sketch17.addConstraint(Sketcher.Constraint("DistanceY", 0, 3, -1, 1, Q("53.4 mm")))
sketch17.addConstraint(Sketcher.Constraint("DistanceX", -1, 1, 0, 3, Q("7.06 mm")))
sketch17.addConstraint(Sketcher.Constraint("DistanceX", 4, 3, 5, 3, Q("0.016299 mm")))
sketch17.addConstraint(Sketcher.Constraint("DistanceX", 5, 3, 6, 3, Q("0.016299 mm")))
sketch17.addConstraint(Sketcher.Constraint("DistanceX", 6, 3, 7, 3, Q("0.016299 mm")))
sketch17.addConstraint(Sketcher.Constraint("DistanceY", 4, 3, 7, 3, Q("11.9999 mm")))
sketch17.addConstraint(Sketcher.Constraint("DistanceY", -1, 1, 4, 3, Q("41.370889 mm")))
sketch17.addConstraint(Sketcher.Constraint("DistanceX", -1, 1, 5, 3, Q("7.244931 mm")))
sketch17.addConstraint(Sketcher.Constraint("DistanceY", -1, 1, 5, 3, Q("45.370856 mm")))
sketch17.addConstraint(Sketcher.Constraint("DistanceY", -1, 1, 6, 3, Q("49.370823 mm")))
pocket11 = body.newObject("PartDesign::Pocket", "Pocket010")
pocket11.Profile = sketch17
pocket11.Length = 10.01
pocket11.Reversed = True

sketch18 = body.newObject("Sketcher::SketchObject", "Sketch017")
sketch18.AttachmentSupport = (doc.getObject("XY_Plane"), [""])
sketch18.MapMode = "FlatFace"
sketch18.AttachmentOffset = App.Placement(Vector(0, 0, 7), App.Rotation())
add_polygon(sketch18, [(0.3, 76.8), (0.3, 78.8), (-37.7, 78.9), (-37.7, 76.9)])
add_polygon(sketch18, [(-38, -76.8), (-38, -78.8), (0, -78.8), (0, -76.8)])
sketch18.addConstraint(Sketcher.Constraint("Vertical", 4))
sketch18.addConstraint(Sketcher.Constraint("Horizontal", 5))
sketch18.addConstraint(Sketcher.Constraint("Vertical", 6))
sketch18.addConstraint(Sketcher.Constraint("Horizontal", 7))
sketch18.addConstraint(Sketcher.Constraint("PointOnObject", 5, 2, -2))
sketch18.addConstraint(Sketcher.Constraint("Perpendicular", 0, 1))
sketch18.addConstraint(Sketcher.Constraint("Perpendicular", 1, 2))
sketch18.addConstraint(Sketcher.Constraint("Perpendicular", 2, 3))
sketch18.addConstraint(Sketcher.Constraint("DistanceX", 5, 1, 5, 2, Q("38 mm")))
sketch18.addConstraint(Sketcher.Constraint("DistanceY", 4, 2, 4, 1, Q("2 mm")))
sketch18.addConstraint(Sketcher.Constraint("Distance", 0, Q("2 mm")))
sketch18.addConstraint(Sketcher.Constraint("Distance", 1, Q("38 mm")))
sketch18.addConstraint(Sketcher.Constraint("DistanceX", -1, 1, 0, 2, Q("0.279519 mm")))
sketch18.addConstraint(Sketcher.Constraint("DistanceY", -1, 1, 0, 2, Q("78.81463 mm")))
sketch18.addConstraint(Sketcher.Constraint("DistanceY", -1, 1, 2, 2, Q("76.949409 mm")))
sketch18.addConstraint(Sketcher.Constraint("DistanceY", 4, 2, -1, 1, Q("78.815125 mm")))
pad7 = body.newObject("PartDesign::Pad", "Pad006")
pad7.Profile = sketch18
pad7.Length = 37

sketch19 = body.newObject("Sketcher::SketchObject", "Sketch018")
sketch19.AttachmentSupport = (doc.getObject("XZ_Plane"), [""])
sketch19.MapMode = "FlatFace"
sketch19.AttachmentOffset = App.Placement(Vector(0, 0, 78.815125), App.Rotation())
sketch19.addGeometry(Part.Circle(Vector(-19, 19, 0), Vector(0, 0, 1), 6), False)
sketch19.addGeometry(Part.Circle(Vector(-34.5, 25, 0), Vector(0, 0, 1), 1.6), False)
sketch19.addGeometry(Part.Circle(Vector(-3.6, 25, 0), Vector(0, 0, 1), 1.6), False)
sketch19.addGeometry(Part.Circle(Vector(-28.8, 37, 0), Vector(0, 0, 1), 1.6), False)
sketch19.addGeometry(Part.Circle(Vector(-9.2, 37, 0), Vector(0, 0, 1), 1.6), False)
sketch19.addGeometry(Part.Circle(Vector(-28.8, 13, 0), Vector(0, 0, 1), 1.6), False)
sketch19.addGeometry(Part.Circle(Vector(-9.2, 13, 0), Vector(0, 0, 1), 1.6), False)
sketch19.addConstraint(Sketcher.Constraint("Equal", 1, 2))
sketch19.addConstraint(Sketcher.Constraint("Equal", 2, 3))
sketch19.addConstraint(Sketcher.Constraint("Equal", 3, 4))
sketch19.addConstraint(Sketcher.Constraint("Equal", 4, 5))
sketch19.addConstraint(Sketcher.Constraint("Equal", 5, 6))
sketch19.addConstraint(Sketcher.Constraint("Diameter", 0, Q("12 mm")))
sketch19.addConstraint(Sketcher.Constraint("Diameter", 1, Q("3.1 mm")))
sketch19.addConstraint(Sketcher.Constraint("DistanceX", 0, 3, -1, 1, Q("19 mm")))
sketch19.addConstraint(Sketcher.Constraint("DistanceY", -1, 1, 0, 3, Q("19 mm")))
sketch19.addConstraint(Sketcher.Constraint("DistanceY", 1, 3, 3, 3, Q("12 mm")))
sketch19.addConstraint(Sketcher.Constraint("DistanceY", 2, 3, 4, 3, Q("12 mm")))
sketch19.addConstraint(Sketcher.Constraint("DistanceY", 5, 3, 1, 3, Q("12 mm")))
sketch19.addConstraint(Sketcher.Constraint("DistanceY", 6, 3, 2, 3, Q("12 mm")))
sketch19.addConstraint(Sketcher.Constraint("DistanceX", 5, 3, 6, 3, Q("19.5895 mm")))
sketch19.addConstraint(Sketcher.Constraint("DistanceX", 1, 3, -1, 1, Q("34.499612 mm")))
sketch19.addConstraint(Sketcher.Constraint("DistanceY", -1, 1, 1, 3, Q("25.010551 mm")))
sketch19.addConstraint(Sketcher.Constraint("DistanceX", 2, 3, -1, 1, Q("3.563871 mm")))
sketch19.addConstraint(Sketcher.Constraint("DistanceY", -1, 1, 2, 3, Q("24.988759 mm")))
sketch19.addConstraint(Sketcher.Constraint("DistanceX", 4, 3, -1, 1, Q("9.177448 mm")))
sketch19.addConstraint(Sketcher.Constraint("DistanceX", 3, 3, 4, 3, Q("19.641738 mm")))
sketch19.addConstraint(Sketcher.Constraint("DistanceX", 5, 3, -1, 1, Q("28.819994 mm")))
pocket12 = body.newObject("PartDesign::Pocket", "Pocket011")
pocket12.Profile = sketch19
pocket12.Length = 2

sketch20 = body.newObject("Sketcher::SketchObject", "Sketch019")
sketch20.Placement = App.Placement(Vector(0.279519, 78.81463, 0), App.Rotation(Vector(0.999993711, -0.003546509, 0), Vector(0, 0, -1), Vector(0.003546509, 0.999993711, 0), "ZXY"))
sketch20.addGeometry(Part.Circle(Vector(-19.3, -19, 0), Vector(0, 0, 1), 6), False)
sketch20.addGeometry(Part.Circle(Vector(-29.1, -13, 0), Vector(0, 0, 1), 1.6), False)
sketch20.addGeometry(Part.Circle(Vector(-3.8, -25, 0), Vector(0, 0, 1), 1.6), False)
sketch20.addGeometry(Part.Circle(Vector(-9.5, -13, 0), Vector(0, 0, 1), 1.6), False)
sketch20.addGeometry(Part.Circle(Vector(-34.8, -25, 0), Vector(0, 0, 1), 1.6), False)
sketch20.addGeometry(Part.Circle(Vector(-29.1, -37, 0), Vector(0, 0, 1), 1.6), False)
sketch20.addGeometry(Part.Circle(Vector(-9.5, -37, 0), Vector(0, 0, 1), 1.6), False)
sketch20.addConstraint(Sketcher.Constraint("Equal", 1, 2))
sketch20.addConstraint(Sketcher.Constraint("Equal", 2, 3))
sketch20.addConstraint(Sketcher.Constraint("Equal", 3, 4))
sketch20.addConstraint(Sketcher.Constraint("Equal", 4, 5))
sketch20.addConstraint(Sketcher.Constraint("Equal", 5, 6))
sketch20.addConstraint(Sketcher.Constraint("Horizontal", 1, 3, 3, 3))
sketch20.addConstraint(Sketcher.Constraint("Horizontal", 2, 3, 4, 3))
sketch20.addConstraint(Sketcher.Constraint("Horizontal", 5, 3, 6, 3))
sketch20.addConstraint(Sketcher.Constraint("Diameter", 0, Q("12 mm")))
sketch20.addConstraint(Sketcher.Constraint("Diameter", 1, Q("3.1 mm")))
sketch20.addConstraint(Sketcher.Constraint("DistanceY", 0, 3, -1, 1, Q("19 mm")))
sketch20.addConstraint(Sketcher.Constraint("DistanceY", 1, 3, -1, 1, Q("13 mm")))
sketch20.addConstraint(Sketcher.Constraint("DistanceY", 2, 3, -1, 1, Q("25 mm")))
sketch20.addConstraint(Sketcher.Constraint("DistanceY", 5, 3, -1, 1, Q("37 mm")))
sketch20.addConstraint(Sketcher.Constraint("DistanceX", 1, 3, -1, 1, Q("29.070149 mm")))
sketch20.addConstraint(Sketcher.Constraint("DistanceX", 6, 3, -1, 1, Q("9.473371 mm")))
sketch20.addConstraint(Sketcher.Constraint("DistanceX", 0, 3, 2, 3, Q("15.501281 mm")))
sketch20.addConstraint(Sketcher.Constraint("DistanceX", 0, 3, 3, 3, Q("9.815609 mm")))
sketch20.addConstraint(Sketcher.Constraint("DistanceX", 4, 3, 3, 3, Q("25.308222 mm")))
sketch20.addConstraint(Sketcher.Constraint("DistanceX", 5, 3, 0, 3, Q("9.81678 mm")))
sketch20.addConstraint(Sketcher.Constraint("DistanceX", 6, 3, 2, 3, Q("5.694939 mm")))
pocket13 = body.newObject("PartDesign::Pocket", "Pocket012")
pocket13.Profile = sketch20
pocket13.Length = 2

doc.recompute()
